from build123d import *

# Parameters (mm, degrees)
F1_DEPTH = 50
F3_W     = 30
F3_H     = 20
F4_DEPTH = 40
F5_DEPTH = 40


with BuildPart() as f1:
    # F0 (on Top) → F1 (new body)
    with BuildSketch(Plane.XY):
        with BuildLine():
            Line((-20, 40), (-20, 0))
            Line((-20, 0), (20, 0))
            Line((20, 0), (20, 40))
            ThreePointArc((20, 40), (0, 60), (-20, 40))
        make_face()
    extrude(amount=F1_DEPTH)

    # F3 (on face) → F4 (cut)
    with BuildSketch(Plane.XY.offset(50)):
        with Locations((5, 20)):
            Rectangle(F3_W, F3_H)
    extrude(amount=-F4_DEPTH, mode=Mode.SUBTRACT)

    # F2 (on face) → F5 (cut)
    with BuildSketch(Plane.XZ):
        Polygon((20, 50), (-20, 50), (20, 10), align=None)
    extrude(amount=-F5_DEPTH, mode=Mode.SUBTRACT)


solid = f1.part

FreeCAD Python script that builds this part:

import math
import FreeCAD as App
import Part
import Sketcher

doc = App.newDocument("Part")
body = doc.addObject("PartDesign::Body", "Body")

# Sketch on XY plane
sketch1 = doc.addObject("Sketcher::SketchObject", "Sketch")
body.addObject(sketch1)
sketch1.AttachmentSupport = (doc.XY_Plane, [""])
sketch1.MapMode = "FlatFace"
sketch1.addGeometry(Part.LineSegment(App.Vector(-20, 40, 0), App.Vector(-20, 0, 0)), False)
sketch1.addGeometry(Part.LineSegment(App.Vector(-20, 0, 0), App.Vector(20, 0, 0)), False)
sketch1.addGeometry(Part.LineSegment(App.Vector(20, 0, 0), App.Vector(20, 40, 0)), False)
sketch1.addGeometry(Part.ArcOfCircle(Part.Circle(App.Vector(0, 40, 0), App.Vector(0, 0, 1), 20), math.radians(0), math.radians(180)), False)
sketch1.addConstraint(Sketcher.Constraint("Coincident", 0, 2, 1, 1))
sketch1.addConstraint(Sketcher.Constraint("Coincident", 1, 2, 2, 1))
sketch1.addConstraint(Sketcher.Constraint("Tangent", 2, 2, 3, 1))
sketch1.addConstraint(Sketcher.Constraint("Tangent", 3, 2, 0, 1))
sketch1.addConstraint(Sketcher.Constraint("Vertical", 0))
sketch1.addConstraint(Sketcher.Constraint("Horizontal", 1))
sketch1.addConstraint(Sketcher.Constraint("Vertical", 2))
sketch1.addConstraint(Sketcher.Constraint("Symmetric", 0, 2, 1, 2, -1, 1))
sketch1.addConstraint(Sketcher.Constraint("Equal", 1, 0))
sketch1.addConstraint(Sketcher.Constraint("Radius", 3, 20.0))
pad1 = doc.addObject("PartDesign::Pad", "Pad")
body.addObject(pad1)
pad1.Profile = sketch1
pad1.Length = 50

# Sketch on XY plane
sketch2 = doc.addObject("Sketcher::SketchObject", "Sketch001")
body.addObject(sketch2)
sketch2.AttachmentSupport = (doc.XY_Plane, [""])
sketch2.MapMode = "FlatFace"
sketch2.AttachmentOffset = App.Placement(App.Vector(0, 0, 50), App.Rotation())
sketch2.addGeometry(Part.LineSegment(App.Vector(-10, 30, 0), App.Vector(-10, 10, 0)), False)
sketch2.addGeometry(Part.LineSegment(App.Vector(-10, 10, 0), App.Vector(20, 10, 0)), False)
sketch2.addGeometry(Part.LineSegment(App.Vector(20, 10, 0), App.Vector(20, 30, 0)), False)
sketch2.addGeometry(Part.LineSegment(App.Vector(20, 30, 0), App.Vector(-10, 30, 0)), False)
sketch2.addConstraint(Sketcher.Constraint("Coincident", 0, 2, 1, 1))
sketch2.addConstraint(Sketcher.Constraint("Coincident", 1, 2, 2, 1))
sketch2.addConstraint(Sketcher.Constraint("Coincident", 2, 2, 3, 1))
sketch2.addConstraint(Sketcher.Constraint("Coincident", 3, 2, 0, 1))
sketch2.addConstraint(Sketcher.Constraint("Vertical", 0))
sketch2.addConstraint(Sketcher.Constraint("Horizontal", 1))
sketch2.addConstraint(Sketcher.Constraint("Vertical", 2))
sketch2.addConstraint(Sketcher.Constraint("Horizontal", 3))
sketch2.addConstraint(Sketcher.Constraint("DistanceX", 1, 1, 1, 2, 30.0))
sketch2.addConstraint(Sketcher.Constraint("DistanceY", 0, 2, 0, 1, 20.0))
sketch2.addConstraint(Sketcher.Constraint("DistanceX", 0, 2, -1, 1, 10.0))
sketch2.addConstraint(Sketcher.Constraint("DistanceY", -1, 1, 0, 2, 10.0))
pocket1 = doc.addObject("PartDesign::Pocket", "Pocket")
body.addObject(pocket1)
pocket1.Profile = sketch2
pocket1.Length = 40

# Sketch on XZ plane
sketch3 = doc.addObject("Sketcher::SketchObject", "Sketch002")
body.addObject(sketch3)
sketch3.AttachmentSupport = (doc.XZ_Plane, [""])
sketch3.MapMode = "FlatFace"
sketch3.addGeometry(Part.LineSegment(App.Vector(20, 50, 0), App.Vector(-20, 50, 0)), False)
sketch3.addGeometry(Part.LineSegment(App.Vector(-20, 50, 0), App.Vector(20, 10, 0)), False)
sketch3.addGeometry(Part.LineSegment(App.Vector(20, 10, 0), App.Vector(20, 50, 0)), False)
sketch3.addConstraint(Sketcher.Constraint("Coincident", 0, 2, 1, 1))
sketch3.addConstraint(Sketcher.Constraint("Coincident", 1, 2, 2, 1))
sketch3.addConstraint(Sketcher.Constraint("Coincident", 2, 2, 0, 1))
sketch3.addConstraint(Sketcher.Constraint("Horizontal", 0))
sketch3.addConstraint(Sketcher.Constraint("Vertical", 2))
sketch3.addConstraint(Sketcher.Constraint("Equal", 0, 2))
sketch3.addConstraint(Sketcher.Constraint("DistanceX", 0, 2, 0, 1, 40.0))
sketch3.addConstraint(Sketcher.Constraint("DistanceX", 0, 2, -1, 1, 20.0))
sketch3.addConstraint(Sketcher.Constraint("DistanceY", -1, 1, 0, 2, 50.0))
pocket2 = doc.addObject("PartDesign::Pocket", "Pocket001")
body.addObject(pocket2)
pocket2.Profile = sketch3
pocket2.Length = 40

doc.recompute()
